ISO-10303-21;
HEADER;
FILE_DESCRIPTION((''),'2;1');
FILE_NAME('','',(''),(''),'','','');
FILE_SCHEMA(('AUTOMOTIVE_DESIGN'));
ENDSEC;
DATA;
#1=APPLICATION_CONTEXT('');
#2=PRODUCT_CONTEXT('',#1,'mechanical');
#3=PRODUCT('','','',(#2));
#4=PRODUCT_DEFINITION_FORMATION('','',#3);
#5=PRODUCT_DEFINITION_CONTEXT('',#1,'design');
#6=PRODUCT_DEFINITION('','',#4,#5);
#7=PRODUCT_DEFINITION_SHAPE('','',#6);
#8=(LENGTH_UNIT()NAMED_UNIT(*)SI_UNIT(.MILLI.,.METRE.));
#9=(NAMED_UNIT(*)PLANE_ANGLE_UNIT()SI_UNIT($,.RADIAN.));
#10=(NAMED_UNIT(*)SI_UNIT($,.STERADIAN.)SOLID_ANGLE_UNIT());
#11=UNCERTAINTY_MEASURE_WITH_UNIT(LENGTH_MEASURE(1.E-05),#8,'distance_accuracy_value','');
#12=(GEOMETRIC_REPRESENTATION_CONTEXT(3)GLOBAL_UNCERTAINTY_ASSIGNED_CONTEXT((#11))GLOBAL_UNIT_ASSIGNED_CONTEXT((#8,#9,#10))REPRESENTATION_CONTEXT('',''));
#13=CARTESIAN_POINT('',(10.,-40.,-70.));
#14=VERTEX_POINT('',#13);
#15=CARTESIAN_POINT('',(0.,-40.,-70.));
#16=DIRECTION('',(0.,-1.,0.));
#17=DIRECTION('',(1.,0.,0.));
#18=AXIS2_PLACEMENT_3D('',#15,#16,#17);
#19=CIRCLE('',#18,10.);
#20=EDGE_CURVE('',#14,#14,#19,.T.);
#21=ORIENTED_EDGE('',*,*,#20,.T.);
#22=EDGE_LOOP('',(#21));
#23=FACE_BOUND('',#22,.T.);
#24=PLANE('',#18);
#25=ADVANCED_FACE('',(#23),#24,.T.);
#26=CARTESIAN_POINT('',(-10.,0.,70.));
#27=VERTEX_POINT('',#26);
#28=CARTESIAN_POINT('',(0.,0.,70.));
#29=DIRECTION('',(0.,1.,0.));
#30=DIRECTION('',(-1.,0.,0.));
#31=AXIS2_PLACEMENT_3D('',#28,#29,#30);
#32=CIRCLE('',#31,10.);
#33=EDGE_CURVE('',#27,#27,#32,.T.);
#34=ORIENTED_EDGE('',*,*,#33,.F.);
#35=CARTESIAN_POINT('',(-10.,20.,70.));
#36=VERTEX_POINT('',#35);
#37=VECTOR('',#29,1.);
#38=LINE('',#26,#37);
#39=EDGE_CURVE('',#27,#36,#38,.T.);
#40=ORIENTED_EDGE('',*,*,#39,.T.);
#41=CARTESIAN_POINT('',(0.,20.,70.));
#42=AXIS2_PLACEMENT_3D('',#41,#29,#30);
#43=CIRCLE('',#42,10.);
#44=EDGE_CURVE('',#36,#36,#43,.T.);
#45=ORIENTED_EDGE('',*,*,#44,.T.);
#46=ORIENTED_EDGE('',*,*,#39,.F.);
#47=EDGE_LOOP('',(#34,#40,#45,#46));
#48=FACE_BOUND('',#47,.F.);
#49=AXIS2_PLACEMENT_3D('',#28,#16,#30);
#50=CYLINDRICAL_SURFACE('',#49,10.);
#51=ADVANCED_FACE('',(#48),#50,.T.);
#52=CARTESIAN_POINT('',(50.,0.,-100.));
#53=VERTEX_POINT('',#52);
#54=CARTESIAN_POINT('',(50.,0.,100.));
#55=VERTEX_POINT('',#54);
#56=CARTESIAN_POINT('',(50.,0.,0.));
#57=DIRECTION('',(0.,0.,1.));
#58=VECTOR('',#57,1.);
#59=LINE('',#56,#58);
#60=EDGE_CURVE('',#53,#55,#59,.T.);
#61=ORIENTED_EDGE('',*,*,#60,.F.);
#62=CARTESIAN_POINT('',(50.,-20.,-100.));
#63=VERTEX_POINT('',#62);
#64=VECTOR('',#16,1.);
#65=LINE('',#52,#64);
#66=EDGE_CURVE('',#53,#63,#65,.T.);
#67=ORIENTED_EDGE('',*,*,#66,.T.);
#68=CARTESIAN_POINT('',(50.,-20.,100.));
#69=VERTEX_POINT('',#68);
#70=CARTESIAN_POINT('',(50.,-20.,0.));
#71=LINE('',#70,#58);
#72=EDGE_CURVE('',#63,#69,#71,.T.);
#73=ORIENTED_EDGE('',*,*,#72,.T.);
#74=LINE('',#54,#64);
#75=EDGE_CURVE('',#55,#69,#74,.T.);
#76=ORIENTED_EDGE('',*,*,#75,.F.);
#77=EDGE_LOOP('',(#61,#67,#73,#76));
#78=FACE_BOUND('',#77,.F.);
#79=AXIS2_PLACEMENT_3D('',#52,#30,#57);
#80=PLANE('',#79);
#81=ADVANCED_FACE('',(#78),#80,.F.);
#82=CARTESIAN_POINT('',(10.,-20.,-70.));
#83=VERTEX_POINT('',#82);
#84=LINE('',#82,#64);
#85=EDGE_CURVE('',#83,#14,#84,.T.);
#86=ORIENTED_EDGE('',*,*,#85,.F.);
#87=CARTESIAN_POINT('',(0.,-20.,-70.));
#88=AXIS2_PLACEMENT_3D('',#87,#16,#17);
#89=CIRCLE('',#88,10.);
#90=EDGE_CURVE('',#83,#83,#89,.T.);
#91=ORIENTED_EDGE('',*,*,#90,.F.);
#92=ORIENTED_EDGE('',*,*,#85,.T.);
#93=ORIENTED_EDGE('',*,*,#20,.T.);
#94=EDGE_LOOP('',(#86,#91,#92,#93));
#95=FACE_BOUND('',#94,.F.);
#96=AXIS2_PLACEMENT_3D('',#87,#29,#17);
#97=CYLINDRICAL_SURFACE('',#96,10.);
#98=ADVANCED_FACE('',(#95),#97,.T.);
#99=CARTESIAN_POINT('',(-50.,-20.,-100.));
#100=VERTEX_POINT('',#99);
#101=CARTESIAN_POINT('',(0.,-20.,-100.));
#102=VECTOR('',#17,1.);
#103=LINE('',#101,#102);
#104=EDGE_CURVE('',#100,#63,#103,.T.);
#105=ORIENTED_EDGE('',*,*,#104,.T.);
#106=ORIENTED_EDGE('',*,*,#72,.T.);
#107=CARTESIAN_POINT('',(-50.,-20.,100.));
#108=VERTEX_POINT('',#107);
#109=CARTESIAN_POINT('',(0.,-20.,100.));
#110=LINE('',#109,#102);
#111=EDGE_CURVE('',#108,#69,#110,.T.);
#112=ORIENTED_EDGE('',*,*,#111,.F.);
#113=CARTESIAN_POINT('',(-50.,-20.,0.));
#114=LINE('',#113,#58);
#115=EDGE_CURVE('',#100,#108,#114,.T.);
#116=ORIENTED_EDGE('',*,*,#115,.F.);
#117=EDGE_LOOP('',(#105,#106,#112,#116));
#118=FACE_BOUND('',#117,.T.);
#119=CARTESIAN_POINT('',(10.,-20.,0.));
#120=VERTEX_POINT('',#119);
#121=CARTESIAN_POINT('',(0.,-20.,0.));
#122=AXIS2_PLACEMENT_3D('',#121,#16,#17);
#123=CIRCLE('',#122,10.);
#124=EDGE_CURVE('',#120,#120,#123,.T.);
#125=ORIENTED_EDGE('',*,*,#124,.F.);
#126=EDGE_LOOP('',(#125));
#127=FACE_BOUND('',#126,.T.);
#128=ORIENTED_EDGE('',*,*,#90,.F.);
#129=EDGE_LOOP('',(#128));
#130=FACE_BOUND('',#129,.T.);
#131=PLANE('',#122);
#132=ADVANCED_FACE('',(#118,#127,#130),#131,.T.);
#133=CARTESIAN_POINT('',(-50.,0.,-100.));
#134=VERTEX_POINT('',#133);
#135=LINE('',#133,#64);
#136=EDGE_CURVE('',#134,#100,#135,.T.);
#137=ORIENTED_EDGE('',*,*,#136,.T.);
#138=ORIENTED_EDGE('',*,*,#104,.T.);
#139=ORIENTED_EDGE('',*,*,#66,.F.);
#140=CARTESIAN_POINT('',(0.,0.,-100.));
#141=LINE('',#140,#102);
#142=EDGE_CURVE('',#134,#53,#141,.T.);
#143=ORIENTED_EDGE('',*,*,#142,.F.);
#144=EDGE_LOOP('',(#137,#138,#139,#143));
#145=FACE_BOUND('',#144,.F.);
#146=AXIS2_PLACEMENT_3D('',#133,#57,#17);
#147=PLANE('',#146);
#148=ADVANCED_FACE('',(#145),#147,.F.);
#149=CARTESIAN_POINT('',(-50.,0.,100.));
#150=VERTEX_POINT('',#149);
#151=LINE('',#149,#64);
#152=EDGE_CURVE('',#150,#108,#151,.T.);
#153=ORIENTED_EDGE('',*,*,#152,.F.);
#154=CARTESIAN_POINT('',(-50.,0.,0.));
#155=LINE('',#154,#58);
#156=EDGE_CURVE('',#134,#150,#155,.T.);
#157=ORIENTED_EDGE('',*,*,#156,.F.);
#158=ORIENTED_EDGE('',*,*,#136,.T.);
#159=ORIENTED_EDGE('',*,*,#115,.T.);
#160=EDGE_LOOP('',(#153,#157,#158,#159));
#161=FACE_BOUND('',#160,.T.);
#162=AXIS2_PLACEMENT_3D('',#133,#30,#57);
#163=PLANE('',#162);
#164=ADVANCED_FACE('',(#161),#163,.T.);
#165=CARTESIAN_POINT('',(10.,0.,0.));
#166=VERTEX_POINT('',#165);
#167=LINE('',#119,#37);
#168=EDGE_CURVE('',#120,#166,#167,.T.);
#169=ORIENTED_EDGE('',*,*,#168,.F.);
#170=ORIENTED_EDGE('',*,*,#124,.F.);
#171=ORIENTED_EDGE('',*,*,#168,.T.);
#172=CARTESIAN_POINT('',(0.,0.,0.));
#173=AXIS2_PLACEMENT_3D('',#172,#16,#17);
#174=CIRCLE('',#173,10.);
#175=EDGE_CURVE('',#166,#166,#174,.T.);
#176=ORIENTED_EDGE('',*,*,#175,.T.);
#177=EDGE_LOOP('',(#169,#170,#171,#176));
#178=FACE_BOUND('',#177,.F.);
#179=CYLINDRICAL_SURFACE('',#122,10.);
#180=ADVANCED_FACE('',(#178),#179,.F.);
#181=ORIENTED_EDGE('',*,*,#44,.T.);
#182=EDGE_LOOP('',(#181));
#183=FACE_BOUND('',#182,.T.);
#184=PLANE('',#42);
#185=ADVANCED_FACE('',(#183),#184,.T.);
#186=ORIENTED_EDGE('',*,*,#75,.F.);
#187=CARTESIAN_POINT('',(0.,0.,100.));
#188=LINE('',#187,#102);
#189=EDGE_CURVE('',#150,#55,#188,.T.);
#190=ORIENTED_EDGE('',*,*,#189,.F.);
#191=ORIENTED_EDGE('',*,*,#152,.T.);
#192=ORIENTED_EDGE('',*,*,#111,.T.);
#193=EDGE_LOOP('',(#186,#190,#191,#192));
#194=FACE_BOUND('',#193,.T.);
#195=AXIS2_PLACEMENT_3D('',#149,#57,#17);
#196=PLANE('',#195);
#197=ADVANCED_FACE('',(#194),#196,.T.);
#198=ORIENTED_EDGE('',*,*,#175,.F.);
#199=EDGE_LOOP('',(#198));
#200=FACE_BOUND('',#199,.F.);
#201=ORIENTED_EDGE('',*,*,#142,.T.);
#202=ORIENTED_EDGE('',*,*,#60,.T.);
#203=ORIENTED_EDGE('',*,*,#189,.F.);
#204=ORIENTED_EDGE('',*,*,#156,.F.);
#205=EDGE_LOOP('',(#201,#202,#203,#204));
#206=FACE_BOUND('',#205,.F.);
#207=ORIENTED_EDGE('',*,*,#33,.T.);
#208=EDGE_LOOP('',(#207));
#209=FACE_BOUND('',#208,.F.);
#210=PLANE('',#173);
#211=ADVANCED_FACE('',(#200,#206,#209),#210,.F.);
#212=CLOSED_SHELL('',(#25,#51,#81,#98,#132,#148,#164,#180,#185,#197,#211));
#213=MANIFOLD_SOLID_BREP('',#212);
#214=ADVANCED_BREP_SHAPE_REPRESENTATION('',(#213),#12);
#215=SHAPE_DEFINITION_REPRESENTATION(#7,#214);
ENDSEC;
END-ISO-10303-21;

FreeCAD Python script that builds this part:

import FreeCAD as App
import Part
import Sketcher
Q = App.Units.Quantity

doc = App.newDocument("Part")
params = doc.addObject("Spreadsheet::Sheet", "Params")
for row, (alias, value) in enumerate([
    ("sketch1_width", "100 mm"),
    ("sketch1_height", "200 mm"),
    ("pad1_length", "20 mm"),
    ("sketch2_diameter", "20 mm"),
    ("sketch3_diameter", "20 mm"),
    ("pad2_length", "20 mm"),
    ("sketch4_diameter", "20 mm"),
    ("pad3_length", "20 mm"),
], start=1):
    params.set(f"A{row}", alias)
    params.set(f"B{row}", "=" + value)
    params.setAlias(f"B{row}", alias)

body = doc.addObject("PartDesign::Body", "Body")

sketch1 = doc.addObject("Sketcher::SketchObject", "Sketch")
body.addObject(sketch1)
sketch1.AttachmentSupport = (doc.XZ_Plane, [""])
sketch1.MapMode = "FlatFace"
sketch1.addGeometry([
    Part.LineSegment(App.Vector(-50, 100, 0), App.Vector(-50, -100, 0)),
    Part.LineSegment(App.Vector(-50, -100, 0), App.Vector(50, -100, 0)),
    Part.LineSegment(App.Vector(50, -100, 0), App.Vector(50, 100, 0)),
    Part.LineSegment(App.Vector(50, 100, 0), App.Vector(-50, 100, 0)),
], False)
sketch1.addConstraint([
    Sketcher.Constraint("Coincident", 0, 2, 1, 1),
    Sketcher.Constraint("Coincident", 1, 2, 2, 1),
    Sketcher.Constraint("Coincident", 2, 2, 3, 1),
    Sketcher.Constraint("Coincident", 3, 2, 0, 1),
    Sketcher.Constraint("Vertical", 0),
    Sketcher.Constraint("Horizontal", 1),
    Sketcher.Constraint("Vertical", 2),
    Sketcher.Constraint("Horizontal", 3),
    Sketcher.Constraint("Symmetric", 0, 2, 2, 2, -1, 1),
    Sketcher.Constraint("DistanceX", 1, 1, 1, 2, Q("100 mm")),
    Sketcher.Constraint("DistanceY", 0, 2, 0, 1, Q("200 mm")),
])
sketch1.setExpression("Constraints[9]", "Params.sketch1_width")
sketch1.setExpression("Constraints[10]", "Params.sketch1_height")
pad1 = doc.addObject("PartDesign::Pad", "Pad")
body.addObject(pad1)
pad1.Profile = sketch1
pad1.setExpression("Length", "Params.pad1_length")

sketch2 = doc.addObject("Sketcher::SketchObject", "Sketch001")
body.addObject(sketch2)
sketch2.AttachmentSupport = (doc.XZ_Plane, [""])
sketch2.MapMode = "FlatFace"
sketch2.AttachmentOffset = App.Placement(App.Vector(0, 0, 20), App.Rotation())
sketch2.addGeometry(Part.Circle(App.Vector(0, 0, 0), App.Vector(0, 0, 1), 10), False)
sketch2.addConstraint([
    Sketcher.Constraint("Coincident", 0, 3, -1, 1),
    Sketcher.Constraint("Diameter", 0, Q("20 mm")),
])
sketch2.setExpression("Constraints[1]", "Params.sketch2_diameter")
pocket1 = doc.addObject("PartDesign::Pocket", "Pocket")
body.addObject(pocket1)
pocket1.Profile = sketch2
pocket1.Type = "ThroughAll"

sketch3 = doc.addObject("Sketcher::SketchObject", "Sketch002")
body.addObject(sketch3)
sketch3.AttachmentSupport = (doc.XZ_Plane, [""])
sketch3.MapMode = "FlatFace"
sketch3.AttachmentOffset = App.Placement(App.Vector(0, 0, 20), App.Rotation())
sketch3.addGeometry(Part.Circle(App.Vector(0, -70, 0), App.Vector(0, 0, 1), 10), False)
sketch3.addConstraint([
    Sketcher.Constraint("PointOnObject", 0, 3, -2),
    Sketcher.Constraint("Diameter", 0, Q("20 mm")),
    Sketcher.Constraint("DistanceY", 0, 3, -1, 1, Q("70 mm")),
])
sketch3.setExpression("Constraints[1]", "Params.sketch3_diameter")
pad2 = doc.addObject("PartDesign::Pad", "Pad001")
body.addObject(pad2)
pad2.Profile = sketch3
pad2.setExpression("Length", "Params.pad2_length")

sketch4 = doc.addObject("Sketcher::SketchObject", "Sketch003")
body.addObject(sketch4)
sketch4.AttachmentSupport = (doc.XZ_Plane, [""])
sketch4.MapMode = "FlatFace"
sketch4.addGeometry(Part.Circle(App.Vector(0, 70, 0), App.Vector(0, 0, 1), 10), False)
sketch4.addConstraint([
    Sketcher.Constraint("PointOnObject", 0, 3, -2),
    Sketcher.Constraint("Diameter", 0, Q("20 mm")),
    Sketcher.Constraint("DistanceY", -1, 1, 0, 3, Q("70 mm")),
])
sketch4.setExpression("Constraints[1]", "Params.sketch4_diameter")
pad3 = doc.addObject("PartDesign::Pad", "Pad002")
body.addObject(pad3)
pad3.Profile = sketch4
pad3.setExpression("Length", "Params.pad3_length")
pad3.Reversed = True

doc.recompute()
